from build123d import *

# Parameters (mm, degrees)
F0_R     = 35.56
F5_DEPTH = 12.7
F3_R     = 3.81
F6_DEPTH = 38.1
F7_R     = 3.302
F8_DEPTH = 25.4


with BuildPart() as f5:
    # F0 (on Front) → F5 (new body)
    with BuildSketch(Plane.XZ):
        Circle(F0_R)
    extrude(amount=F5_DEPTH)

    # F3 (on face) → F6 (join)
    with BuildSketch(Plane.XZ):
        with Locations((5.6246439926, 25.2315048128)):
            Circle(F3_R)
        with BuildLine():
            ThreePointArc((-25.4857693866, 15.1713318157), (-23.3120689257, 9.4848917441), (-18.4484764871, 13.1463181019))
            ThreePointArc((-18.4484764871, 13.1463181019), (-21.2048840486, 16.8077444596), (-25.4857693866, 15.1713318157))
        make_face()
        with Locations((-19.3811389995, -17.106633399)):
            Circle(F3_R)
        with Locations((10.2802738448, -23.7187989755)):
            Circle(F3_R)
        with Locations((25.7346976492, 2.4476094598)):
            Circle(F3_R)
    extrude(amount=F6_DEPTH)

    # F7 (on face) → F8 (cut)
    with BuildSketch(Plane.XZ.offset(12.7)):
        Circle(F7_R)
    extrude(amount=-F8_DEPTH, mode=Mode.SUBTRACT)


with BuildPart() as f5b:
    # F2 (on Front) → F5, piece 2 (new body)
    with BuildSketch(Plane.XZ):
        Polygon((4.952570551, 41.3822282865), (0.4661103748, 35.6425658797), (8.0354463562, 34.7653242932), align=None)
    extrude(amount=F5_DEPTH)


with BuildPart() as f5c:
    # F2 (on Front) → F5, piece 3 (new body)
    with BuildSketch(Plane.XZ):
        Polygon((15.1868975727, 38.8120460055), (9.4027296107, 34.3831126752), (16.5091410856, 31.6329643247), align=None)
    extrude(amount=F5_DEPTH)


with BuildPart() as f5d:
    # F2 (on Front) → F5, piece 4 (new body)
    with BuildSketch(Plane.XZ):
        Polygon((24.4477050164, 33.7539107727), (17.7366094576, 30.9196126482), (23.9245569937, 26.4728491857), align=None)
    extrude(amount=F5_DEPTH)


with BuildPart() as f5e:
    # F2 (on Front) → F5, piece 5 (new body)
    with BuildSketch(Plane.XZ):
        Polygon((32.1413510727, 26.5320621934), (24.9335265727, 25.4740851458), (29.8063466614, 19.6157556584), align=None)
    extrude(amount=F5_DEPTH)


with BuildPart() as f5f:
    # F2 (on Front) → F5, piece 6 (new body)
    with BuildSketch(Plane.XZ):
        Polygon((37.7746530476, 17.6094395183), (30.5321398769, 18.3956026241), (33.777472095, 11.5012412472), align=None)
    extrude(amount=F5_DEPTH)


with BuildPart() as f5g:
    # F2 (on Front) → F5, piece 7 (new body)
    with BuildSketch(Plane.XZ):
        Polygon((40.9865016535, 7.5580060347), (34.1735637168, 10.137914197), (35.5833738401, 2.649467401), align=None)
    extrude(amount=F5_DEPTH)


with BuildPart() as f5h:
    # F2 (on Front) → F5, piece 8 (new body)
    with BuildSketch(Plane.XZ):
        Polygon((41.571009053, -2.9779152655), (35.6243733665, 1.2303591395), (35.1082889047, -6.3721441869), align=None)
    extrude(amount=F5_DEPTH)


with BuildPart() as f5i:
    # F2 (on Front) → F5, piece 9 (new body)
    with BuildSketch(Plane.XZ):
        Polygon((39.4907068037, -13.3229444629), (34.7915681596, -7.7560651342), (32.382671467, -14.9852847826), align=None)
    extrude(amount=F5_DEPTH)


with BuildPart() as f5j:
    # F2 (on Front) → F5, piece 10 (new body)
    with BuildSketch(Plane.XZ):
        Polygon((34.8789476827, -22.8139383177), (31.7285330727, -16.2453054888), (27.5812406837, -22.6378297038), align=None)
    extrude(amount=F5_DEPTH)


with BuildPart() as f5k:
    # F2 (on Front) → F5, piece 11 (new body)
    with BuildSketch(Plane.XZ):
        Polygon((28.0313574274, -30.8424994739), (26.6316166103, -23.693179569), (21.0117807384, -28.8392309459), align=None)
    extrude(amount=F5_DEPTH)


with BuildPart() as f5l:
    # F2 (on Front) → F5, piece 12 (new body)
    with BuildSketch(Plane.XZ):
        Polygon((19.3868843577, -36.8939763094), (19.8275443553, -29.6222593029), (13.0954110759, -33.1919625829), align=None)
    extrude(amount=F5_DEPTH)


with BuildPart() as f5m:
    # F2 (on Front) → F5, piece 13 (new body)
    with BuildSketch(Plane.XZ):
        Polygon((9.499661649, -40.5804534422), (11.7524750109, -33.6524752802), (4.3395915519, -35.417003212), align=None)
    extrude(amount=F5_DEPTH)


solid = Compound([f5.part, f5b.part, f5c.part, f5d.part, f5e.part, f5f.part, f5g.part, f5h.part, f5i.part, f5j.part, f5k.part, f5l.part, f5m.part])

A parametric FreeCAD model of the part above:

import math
import FreeCAD as App
import Part
import Sketcher

V = App.Vector
Q = App.Units.Quantity

doc = App.newDocument("Part")
params = doc.addObject("Spreadsheet::Sheet", "Params")
for row, (alias, value) in enumerate([
    ("sketch1_diameter", "2.8 in"),
    ("pad1_length", "0.5 in"),
    ("sketch2_diameter", "0.3 in"),
    ("pad2_length", "1.5 in"),
    ("sketch3_diameter", "0.26 in"),
    ("pocket1_length", "1 in"),
    ("sketch4_length", "0.3 in"),
    ("pad3_length", "0.5 in"),
    ("sketch5_length", "0.3 in"),
    ("pad4_length", "0.5 in"),
    ("sketch6_length", "0.3 in"),
    ("pad5_length", "0.5 in"),
    ("sketch7_length", "0.3 in"),
    ("pad6_length", "0.5 in"),
    ("sketch8_length", "0.3 in"),
    ("pad7_length", "0.5 in"),
    ("sketch9_length", "0.3 in"),
    ("pad8_length", "0.5 in"),
    ("sketch10_length", "0.3 in"),
    ("pad9_length", "0.5 in"),
    ("sketch11_length", "0.3 in"),
    ("pad10_length", "0.5 in"),
    ("sketch12_length", "0.3 in"),
    ("pad11_length", "0.5 in"),
    ("sketch13_length", "0.3 in"),
    ("pad12_length", "0.5 in"),
    ("sketch14_length", "0.3 in"),
    ("pad13_length", "0.5 in"),
    ("sketch15_length", "0.3 in"),
    ("pad14_length", "0.5 in"),
], start=1):
    params.set(f"A{row}", alias)
    params.set(f"B{row}", "=" + value)
    params.setAlias(f"B{row}", alias)

body = doc.addObject("PartDesign::Body", "Body")

sketch1 = doc.addObject("Sketcher::SketchObject", "Sketch")
body.addObject(sketch1)
sketch1.AttachmentSupport = (doc.XZ_Plane, [""])
sketch1.MapMode = "FlatFace"
sketch1.addGeometry(Part.Circle(V(0, 0, 0), V(0, 0, 1), 36), False)
sketch1.addConstraint(Sketcher.Constraint("Coincident", 0, 3, -1, 1))
sketch1.addConstraint(Sketcher.Constraint("Diameter", 0, Q("2.8 in")))
sketch1.setExpression("Constraints[1]", "Params.sketch1_diameter")
pad1 = doc.addObject("PartDesign::Pad", "Pad")
body.addObject(pad1)
pad1.Profile = sketch1
pad1.setExpression("Length", "Params.pad1_length")

sketch2 = doc.addObject("Sketcher::SketchObject", "Sketch001")
body.addObject(sketch2)
sketch2.AttachmentSupport = (doc.XZ_Plane, [""])
sketch2.MapMode = "FlatFace"
sketch2.addGeometry(Part.Circle(V(5.6, 25.2, 0), V(0, 0, 1), 3.8), False)
sketch2.addGeometry(Part.ArcOfCircle(Part.Circle(V(-22.3, 13.1, 0), V(0, 0, 1), 3.8), math.radians(148), math.radians(360)), False)
sketch2.addGeometry(Part.ArcOfCircle(Part.Circle(V(-22.3, 13.1, 0), V(0, 0, 1), 3.8), math.radians(0), math.radians(148)), False)
sketch2.addGeometry(Part.Circle(V(-19.4, -17.1, 0), V(0, 0, 1), 3.8), False)
sketch2.addGeometry(Part.Circle(V(10.3, -23.7, 0), V(0, 0, 1), 3.8), False)
sketch2.addGeometry(Part.Circle(V(25.7, 2.4, 0), V(0, 0, 1), 3.8), False)
sketch2.addConstraint(Sketcher.Constraint("Tangent", 1, 1, 2, 2))
sketch2.addConstraint(Sketcher.Constraint("Coincident", 2, 1, 1, 2))
sketch2.addConstraint(Sketcher.Constraint("Equal", 0, 1))
sketch2.addConstraint(Sketcher.Constraint("Equal", 2, 3))
sketch2.addConstraint(Sketcher.Constraint("Equal", 3, 4))
sketch2.addConstraint(Sketcher.Constraint("Equal", 4, 5))
sketch2.addConstraint(Sketcher.Constraint("Horizontal", 1, 3, 2, 1))
sketch2.addConstraint(Sketcher.Constraint("Diameter", 0, Q("0.3 in")))
sketch2.addConstraint(Sketcher.Constraint("DistanceY", 4, 3, -1, 1, 23.718799))
sketch2.addConstraint(Sketcher.Constraint("DistanceY", -1, 1, 1, 3, 13.146318))
sketch2.addConstraint(Sketcher.Constraint("DistanceX", 3, 3, -1, 1, 19.381139))
sketch2.addConstraint(Sketcher.Constraint("DistanceY", -1, 1, 5, 3, 2.447609))
sketch2.addConstraint(Sketcher.Constraint("DistanceX", 1, 1, -1, 1, 25.485769))
sketch2.addConstraint(Sketcher.Constraint("DistanceY", -1, 1, 1, 1, 15.171332))
sketch2.addConstraint(Sketcher.Constraint("DistanceX", 1, 3, 0, 3, 27.88312))
sketch2.addConstraint(Sketcher.Constraint("DistanceY", 3, 3, 1, 3, 30.252952))
sketch2.addConstraint(Sketcher.Constraint("DistanceY", 3, 3, 0, 3, 42.338138))
sketch2.addConstraint(Sketcher.Constraint("DistanceX", 1, 3, 4, 3, 32.53875))
sketch2.addConstraint(Sketcher.Constraint("DistanceX", -1, 1, 5, 3, 25.734698))
sketch2.setExpression("Constraints[7]", "Params.sketch2_diameter")
pad2 = doc.addObject("PartDesign::Pad", "Pad001")
body.addObject(pad2)
pad2.Profile = sketch2
pad2.setExpression("Length", "Params.pad2_length")

sketch3 = doc.addObject("Sketcher::SketchObject", "Sketch002")
body.addObject(sketch3)
sketch3.AttachmentSupport = (doc.XZ_Plane, [""])
sketch3.MapMode = "FlatFace"
sketch3.AttachmentOffset = App.Placement(V(0, 0, 0.5 * 25.4), App.Rotation())
sketch3.addGeometry(Part.Circle(V(0, 0, 0), V(0, 0, 1), 3.3), False)
sketch3.addConstraint(Sketcher.Constraint("Coincident", 0, 3, -1, 1))
sketch3.addConstraint(Sketcher.Constraint("Diameter", 0, Q("0.26 in")))
sketch3.setExpression("Constraints[1]", "Params.sketch3_diameter")
pocket1 = doc.addObject("PartDesign::Pocket", "Pocket")
body.addObject(pocket1)
pocket1.Profile = sketch3
pocket1.setExpression("Length", "Params.pocket1_length")
body2 = doc.addObject("PartDesign::Body", "Body001")

sketch4 = doc.addObject("Sketcher::SketchObject", "Sketch003")
body2.addObject(sketch4)
sketch4.AttachmentSupport = (doc.getObject("XZ_Plane001"), [""])
sketch4.MapMode = "FlatFace"
sketch4.addGeometry(Part.LineSegment(V(5, 41, 0), V(0, 36, 0)), False)
sketch4.addGeometry(Part.LineSegment(V(0, 36, 0), V(8, 35, 0)), False)
sketch4.addGeometry(Part.LineSegment(V(8, 35, 0), V(5, 41, 0)), False)
sketch4.addConstraint(Sketcher.Constraint("Coincident", 0, 2, 1, 1))
sketch4.addConstraint(Sketcher.Constraint("Coincident", 1, 2, 2, 1))
sketch4.addConstraint(Sketcher.Constraint("Coincident", 2, 2, 0, 1))
sketch4.addConstraint(Sketcher.Constraint("Distance", 1, Q("0.3 in")))
sketch4.addConstraint(Sketcher.Constraint("Distance", 2, 7.299832))
sketch4.addConstraint(Sketcher.Constraint("DistanceX", -1, 1, 0, 2, 0.46611))
sketch4.addConstraint(Sketcher.Constraint("DistanceX", -1, 1, 2, 2, 4.952571))
sketch4.addConstraint(Sketcher.Constraint("DistanceY", -1, 1, 2, 2, 41.382228))
sketch4.addConstraint(Sketcher.Constraint("DistanceY", 1, 2, 0, 2, 0.877242))
sketch4.setExpression("Constraints[3]", "Params.sketch4_length")
pad3 = doc.addObject("PartDesign::Pad", "Pad002")
body2.addObject(pad3)
pad3.Profile = sketch4
pad3.setExpression("Length", "Params.pad3_length")
body3 = doc.addObject("PartDesign::Body", "Body002")

sketch5 = doc.addObject("Sketcher::SketchObject", "Sketch004")
body3.addObject(sketch5)
sketch5.AttachmentSupport = (doc.getObject("XZ_Plane002"), [""])
sketch5.MapMode = "FlatFace"
sketch5.addGeometry(Part.LineSegment(V(15, 39, 0), V(9, 34, 0)), False)
sketch5.addGeometry(Part.LineSegment(V(9, 34, 0), V(17, 32, 0)), False)
sketch5.addGeometry(Part.LineSegment(V(17, 32, 0), V(15, 39, 0)), False)
sketch5.addConstraint(Sketcher.Constraint("Coincident", 0, 2, 1, 1))
sketch5.addConstraint(Sketcher.Constraint("Coincident", 1, 2, 2, 1))
sketch5.addConstraint(Sketcher.Constraint("Coincident", 2, 2, 0, 1))
sketch5.addConstraint(Sketcher.Constraint("Distance", 1, Q("0.3 in")))
sketch5.addConstraint(Sketcher.Constraint("Distance", 2, 7.299832))
sketch5.addConstraint(Sketcher.Constraint("DistanceX", -1, 1, 0, 2, 9.40273))
sketch5.addConstraint(Sketcher.Constraint("DistanceX", -1, 1, 1, 2, 16.509141))
sketch5.addConstraint(Sketcher.Constraint("DistanceY", 1, 2, 2, 2, 7.179082))
sketch5.addConstraint(Sketcher.Constraint("DistanceY", -1, 1, 0, 2, 34.383113))
sketch5.setExpression("Constraints[3]", "Params.sketch5_length")
pad4 = doc.addObject("PartDesign::Pad", "Pad003")
body3.addObject(pad4)
pad4.Profile = sketch5
pad4.setExpression("Length", "Params.pad4_length")
body4 = doc.addObject("PartDesign::Body", "Body003")

sketch6 = doc.addObject("Sketcher::SketchObject", "Sketch005")
body4.addObject(sketch6)
sketch6.AttachmentSupport = (doc.getObject("XZ_Plane003"), [""])
sketch6.MapMode = "FlatFace"
sketch6.addGeometry(Part.LineSegment(V(24, 34, 0), V(18, 31, 0)), False)
sketch6.addGeometry(Part.LineSegment(V(18, 31, 0), V(24, 26, 0)), False)
sketch6.addGeometry(Part.LineSegment(V(24, 26, 0), V(24, 34, 0)), False)
sketch6.addConstraint(Sketcher.Constraint("Coincident", 0, 2, 1, 1))
sketch6.addConstraint(Sketcher.Constraint("Coincident", 1, 2, 2, 1))
sketch6.addConstraint(Sketcher.Constraint("Coincident", 2, 2, 0, 1))
sketch6.addConstraint(Sketcher.Constraint("Distance", 1, Q("0.3 in")))
sketch6.addConstraint(Sketcher.Constraint("DistanceY", 0, 2, 2, 2, 2.834298))
sketch6.addConstraint(Sketcher.Constraint("Distance", 2, 7.299832))
sketch6.addConstraint(Sketcher.Constraint("DistanceX", -1, 1, 0, 2, 17.736609))
sketch6.addConstraint(Sketcher.Constraint("DistanceY", -1, 1, 1, 2, 26.472849))
sketch6.addConstraint(Sketcher.Constraint("DistanceY", -1, 1, 2, 2, 33.753911))
sketch6.setExpression("Constraints[3]", "Params.sketch6_length")
pad5 = doc.addObject("PartDesign::Pad", "Pad004")
body4.addObject(pad5)
pad5.Profile = sketch6
pad5.setExpression("Length", "Params.pad5_length")
body5 = doc.addObject("PartDesign::Body", "Body004")

sketch7 = doc.addObject("Sketcher::SketchObject", "Sketch006")
body5.addObject(sketch7)
sketch7.AttachmentSupport = (doc.getObject("XZ_Plane004"), [""])
sketch7.MapMode = "FlatFace"
sketch7.addGeometry(Part.LineSegment(V(32, 27, 0), V(25, 25, 0)), False)
sketch7.addGeometry(Part.LineSegment(V(25, 25, 0), V(30, 20, 0)), False)
sketch7.addGeometry(Part.LineSegment(V(30, 20, 0), V(32, 27, 0)), False)
sketch7.addConstraint(Sketcher.Constraint("Coincident", 0, 2, 1, 1))
sketch7.addConstraint(Sketcher.Constraint("Coincident", 1, 2, 2, 1))
sketch7.addConstraint(Sketcher.Constraint("Coincident", 2, 2, 0, 1))
sketch7.addConstraint(Sketcher.Constraint("Distance", 1, Q("0.3 in")))
sketch7.addConstraint(Sketcher.Constraint("Distance", 2, 7.299832))
sketch7.addConstraint(Sketcher.Constraint("DistanceX", -1, 1, 2, 2, 32.141351))
sketch7.addConstraint(Sketcher.Constraint("DistanceX", 0, 2, 1, 2, 4.87282))
sketch7.addConstraint(Sketcher.Constraint("Distance", 0, 7.285057))
sketch7.addConstraint(Sketcher.Constraint("DistanceY", -1, 1, 0, 2, 25.474085))
sketch7.setExpression("Constraints[3]", "Params.sketch7_length")
pad6 = doc.addObject("PartDesign::Pad", "Pad005")
body5.addObject(pad6)
pad6.Profile = sketch7
pad6.setExpression("Length", "Params.pad6_length")
body6 = doc.addObject("PartDesign::Body", "Body005")

sketch8 = doc.addObject("Sketcher::SketchObject", "Sketch007")
body6.addObject(sketch8)
sketch8.AttachmentSupport = (doc.getObject("XZ_Plane005"), [""])
sketch8.MapMode = "FlatFace"
sketch8.addGeometry(Part.LineSegment(V(38, 18, 0), V(31, 18, 0)), False)
sketch8.addGeometry(Part.LineSegment(V(31, 18, 0), V(34, 12, 0)), False)
sketch8.addGeometry(Part.LineSegment(V(34, 12, 0), V(38, 18, 0)), False)
sketch8.addConstraint(Sketcher.Constraint("Coincident", 0, 2, 1, 1))
sketch8.addConstraint(Sketcher.Constraint("Coincident", 1, 2, 2, 1))
sketch8.addConstraint(Sketcher.Constraint("Coincident", 2, 2, 0, 1))
sketch8.addConstraint(Sketcher.Constraint("Distance", 1, Q("0.3 in")))
sketch8.addConstraint(Sketcher.Constraint("DistanceY", 1, 2, 2, 2, 6.108198))
sketch8.addConstraint(Sketcher.Constraint("Distance", 2, 7.299832))
sketch8.addConstraint(Sketcher.Constraint("DistanceX", -1, 1, 0, 2, 30.53214))
sketch8.addConstraint(Sketcher.Constraint("DistanceY", -1, 1, 1, 2, 11.501241))
sketch8.addConstraint(Sketcher.Constraint("DistanceY", 1, 2, 0, 2, 6.894361))
sketch8.setExpression("Constraints[3]", "Params.sketch8_length")
pad7 = doc.addObject("PartDesign::Pad", "Pad006")
body6.addObject(pad7)
pad7.Profile = sketch8
pad7.setExpression("Length", "Params.pad7_length")
body7 = doc.addObject("PartDesign::Body", "Body006")

sketch9 = doc.addObject("Sketcher::SketchObject", "Sketch008")
body7.addObject(sketch9)
sketch9.AttachmentSupport = (doc.getObject("XZ_Plane006"), [""])
sketch9.MapMode = "FlatFace"
sketch9.addGeometry(Part.LineSegment(V(41, 8, 0), V(34, 10, 0)), False)
sketch9.addGeometry(Part.LineSegment(V(34, 10, 0), V(36, 3, 0)), False)
sketch9.addGeometry(Part.LineSegment(V(36, 3, 0), V(41, 8, 0)), False)
sketch9.addConstraint(Sketcher.Constraint("Coincident", 0, 2, 1, 1))
sketch9.addConstraint(Sketcher.Constraint("Coincident", 1, 2, 2, 1))
sketch9.addConstraint(Sketcher.Constraint("Coincident", 2, 2, 0, 1))
sketch9.addConstraint(Sketcher.Constraint("Distance", 1, Q("0.3 in")))
sketch9.addConstraint(Sketcher.Constraint("DistanceX", -1, 1, 2, 2, 40.986502))
sketch9.addConstraint(Sketcher.Constraint("Distance", 2, 7.299832))
sketch9.addConstraint(Sketcher.Constraint("DistanceX", 0, 2, 1, 2, 1.40981))
sketch9.addConstraint(Sketcher.Constraint("DistanceY", 2, 2, 0, 2, 2.579908))
sketch9.addConstraint(Sketcher.Constraint("DistanceY", -1, 1, 0, 2, 10.137914))
sketch9.setExpression("Constraints[3]", "Params.sketch9_length")
pad8 = doc.addObject("PartDesign::Pad", "Pad007")
body7.addObject(pad8)
pad8.Profile = sketch9
pad8.setExpression("Length", "Params.pad8_length")
body8 = doc.addObject("PartDesign::Body", "Body007")

sketch10 = doc.addObject("Sketcher::SketchObject", "Sketch009")
body8.addObject(sketch10)
sketch10.AttachmentSupport = (doc.getObject("XZ_Plane007"), [""])
sketch10.MapMode = "FlatFace"
sketch10.addGeometry(Part.LineSegment(V(42, -3, 0), V(36, 1, 0)), False)
sketch10.addGeometry(Part.LineSegment(V(36, 1, 0), V(35, -6, 0)), False)
sketch10.addGeometry(Part.LineSegment(V(35, -6, 0), V(42, -3, 0)), False)
sketch10.addConstraint(Sketcher.Constraint("Coincident", 0, 2, 1, 1))
sketch10.addConstraint(Sketcher.Constraint("Coincident", 1, 2, 2, 1))
sketch10.addConstraint(Sketcher.Constraint("Coincident", 2, 2, 0, 1))
sketch10.addConstraint(Sketcher.Constraint("Distance", 1, Q("0.3 in")))
sketch10.addConstraint(Sketcher.Constraint("Distance", 2, 7.299832))
sketch10.addConstraint(Sketcher.Constraint("DistanceY", -1, 1, 0, 2, 1.230359))
sketch10.addConstraint(Sketcher.Constraint("DistanceX", -1, 1, 1, 2, 35.108289))
sketch10.addConstraint(Sketcher.Constraint("DistanceX", -1, 1, 2, 2, 41.571009))
sketch10.addConstraint(Sketcher.Constraint("Distance", 0, 7.285057))
sketch10.setExpression("Constraints[3]", "Params.sketch10_length")
pad9 = doc.addObject("PartDesign::Pad", "Pad008")
body8.addObject(pad9)
pad9.Profile = sketch10
pad9.setExpression("Length", "Params.pad9_length")
body9 = doc.addObject("PartDesign::Body", "Body008")

sketch11 = doc.addObject("Sketcher::SketchObject", "Sketch010")
body9.addObject(sketch11)
sketch11.AttachmentSupport = (doc.getObject("XZ_Plane008"), [""])
sketch11.MapMode = "FlatFace"
sketch11.addGeometry(Part.LineSegment(V(39, -13, 0), V(35, -8, 0)), False)
sketch11.addGeometry(Part.LineSegment(V(35, -8, 0), V(32, -15, 0)), False)
sketch11.addGeometry(Part.LineSegment(V(32, -15, 0), V(39, -13, 0)), False)
sketch11.addConstraint(Sketcher.Constraint("Coincident", 0, 2, 1, 1))
sketch11.addConstraint(Sketcher.Constraint("Coincident", 1, 2, 2, 1))
sketch11.addConstraint(Sketcher.Constraint("Coincident", 2, 2, 0, 1))
sketch11.addConstraint(Sketcher.Constraint("Distance", 1, Q("0.3 in")))
sketch11.addConstraint(Sketcher.Constraint("Distance", 2, 7.299832))
sketch11.addConstraint(Sketcher.Constraint("DistanceX", -1, 1, 0, 2, 34.791568))
sketch11.addConstraint(Sketcher.Constraint("DistanceX", -1, 1, 1, 2, 32.382671))
sketch11.addConstraint(Sketcher.Constraint("DistanceX", 0, 2, 2, 2, 4.699139))
sketch11.addConstraint(Sketcher.Constraint("DistanceY", 0, 2, -1, 1, 7.756065))
sketch11.setExpression("Constraints[3]", "Params.sketch11_length")
pad10 = doc.addObject("PartDesign::Pad", "Pad009")
body9.addObject(pad10)
pad10.Profile = sketch11
pad10.setExpression("Length", "Params.pad10_length")
body10 = doc.addObject("PartDesign::Body", "Body009")

sketch12 = doc.addObject("Sketcher::SketchObject", "Sketch011")
body10.addObject(sketch12)
sketch12.AttachmentSupport = (doc.getObject("XZ_Plane009"), [""])
sketch12.MapMode = "FlatFace"
sketch12.addGeometry(Part.LineSegment(V(35, -23, 0), V(32, -16, 0)), False)
sketch12.addGeometry(Part.LineSegment(V(32, -16, 0), V(28, -23, 0)), False)
sketch12.addGeometry(Part.LineSegment(V(28, -23, 0), V(35, -23, 0)), False)
sketch12.addConstraint(Sketcher.Constraint("Coincident", 0, 2, 1, 1))
sketch12.addConstraint(Sketcher.Constraint("Coincident", 1, 2, 2, 1))
sketch12.addConstraint(Sketcher.Constraint("Coincident", 2, 2, 0, 1))
sketch12.addConstraint(Sketcher.Constraint("Distance", 1, Q("0.3 in")))
sketch12.addConstraint(Sketcher.Constraint("Distance", 2, 7.299832))
sketch12.addConstraint(Sketcher.Constraint("DistanceX", -1, 1, 1, 2, 27.581241))
sketch12.addConstraint(Sketcher.Constraint("DistanceY", 1, 2, -1, 1, 22.63783))
sketch12.addConstraint(Sketcher.Constraint("DistanceY", 2, 2, -1, 1, 22.813938))
sketch12.addConstraint(Sketcher.Constraint("Distance", 0, 7.285057))
sketch12.setExpression("Constraints[3]", "Params.sketch12_length")
pad11 = doc.addObject("PartDesign::Pad", "Pad010")
body10.addObject(pad11)
pad11.Profile = sketch12
pad11.setExpression("Length", "Params.pad11_length")
body11 = doc.addObject("PartDesign::Body", "Body010")

sketch13 = doc.addObject("Sketcher::SketchObject", "Sketch012")
body11.addObject(sketch13)
sketch13.AttachmentSupport = (doc.getObject("XZ_Plane010"), [""])
sketch13.MapMode = "FlatFace"
sketch13.addGeometry(Part.LineSegment(V(28, -31, 0), V(27, -24, 0)), False)
sketch13.addGeometry(Part.LineSegment(V(27, -24, 0), V(21, -29, 0)), False)
sketch13.addGeometry(Part.LineSegment(V(21, -29, 0), V(28, -31, 0)), False)
sketch13.addConstraint(Sketcher.Constraint("Coincident", 0, 2, 1, 1))
sketch13.addConstraint(Sketcher.Constraint("Coincident", 1, 2, 2, 1))
sketch13.addConstraint(Sketcher.Constraint("Coincident", 2, 2, 0, 1))
sketch13.addConstraint(Sketcher.Constraint("Distance", 1, Q("0.3 in")))
sketch13.addConstraint(Sketcher.Constraint("DistanceY", 2, 2, -1, 1, 30.842499))
sketch13.addConstraint(Sketcher.Constraint("Distance", 2, 7.299832))
sketch13.addConstraint(Sketcher.Constraint("DistanceY", 0, 2, -1, 1, 23.69318))
sketch13.addConstraint(Sketcher.Constraint("DistanceX", -1, 1, 1, 2, 21.011781))
sketch13.addConstraint(Sketcher.Constraint("DistanceY", 1, 2, -1, 1, 28.839231))
sketch13.setExpression("Constraints[3]", "Params.sketch13_length")
pad12 = doc.addObject("PartDesign::Pad", "Pad011")
body11.addObject(pad12)
pad12.Profile = sketch13
pad12.setExpression("Length", "Params.pad12_length")
body12 = doc.addObject("PartDesign::Body", "Body011")

sketch14 = doc.addObject("Sketcher::SketchObject", "Sketch013")
body12.addObject(sketch14)
sketch14.AttachmentSupport = (doc.getObject("XZ_Plane011"), [""])
sketch14.MapMode = "FlatFace"
sketch14.addGeometry(Part.LineSegment(V(19, -37, 0), V(20, -30, 0)), False)
sketch14.addGeometry(Part.LineSegment(V(20, -30, 0), V(13, -33, 0)), False)
sketch14.addGeometry(Part.LineSegment(V(13, -33, 0), V(19, -37, 0)), False)
sketch14.addConstraint(Sketcher.Constraint("Coincident", 0, 2, 1, 1))
sketch14.addConstraint(Sketcher.Constraint("Coincident", 1, 2, 2, 1))
sketch14.addConstraint(Sketcher.Constraint("Coincident", 2, 2, 0, 1))
sketch14.addConstraint(Sketcher.Constraint("Distance", 1, Q("0.3 in")))
sketch14.addConstraint(Sketcher.Constraint("Distance", 2, 7.299832))
sketch14.addConstraint(Sketcher.Constraint("DistanceY", 0, 2, -1, 1, 29.622259))
sketch14.addConstraint(Sketcher.Constraint("DistanceX", -1, 1, 1, 2, 13.095411))
sketch14.addConstraint(Sketcher.Constraint("DistanceX", 2, 2, 0, 2, 0.44066))
sketch14.addConstraint(Sketcher.Constraint("Distance", 0, 7.285057))
sketch14.setExpression("Constraints[3]", "Params.sketch14_length")
pad13 = doc.addObject("PartDesign::Pad", "Pad012")
body12.addObject(pad13)
pad13.Profile = sketch14
pad13.setExpression("Length", "Params.pad13_length")
body13 = doc.addObject("PartDesign::Body", "Body012")

sketch15 = doc.addObject("Sketcher::SketchObject", "Sketch014")
body13.addObject(sketch15)
sketch15.AttachmentSupport = (doc.getObject("XZ_Plane012"), [""])
sketch15.MapMode = "FlatFace"
sketch15.addGeometry(Part.LineSegment(V(9, -41, 0), V(12, -34, 0)), False)
sketch15.addGeometry(Part.LineSegment(V(12, -34, 0), V(4, -35, 0)), False)
sketch15.addGeometry(Part.LineSegment(V(4, -35, 0), V(9, -41, 0)), False)
sketch15.addConstraint(Sketcher.Constraint("Coincident", 0, 2, 1, 1))
sketch15.addConstraint(Sketcher.Constraint("Coincident", 1, 2, 2, 1))
sketch15.addConstraint(Sketcher.Constraint("Coincident", 2, 2, 0, 1))
sketch15.addConstraint(Sketcher.Constraint("Distance", 1, Q("0.3 in")))
sketch15.addConstraint(Sketcher.Constraint("Distance", 2, 7.299832))
sketch15.addConstraint(Sketcher.Constraint("DistanceX", -1, 1, 1, 2, 4.339592))
sketch15.addConstraint(Sketcher.Constraint("DistanceX", -1, 1, 2, 2, 9.499662))
sketch15.addConstraint(Sketcher.Constraint("DistanceY", 2, 2, 0, 2, 6.927978))
sketch15.addConstraint(Sketcher.Constraint("DistanceY", 0, 2, -1, 1, 33.652475))
sketch15.setExpression("Constraints[3]", "Params.sketch15_length")
pad14 = doc.addObject("PartDesign::Pad", "Pad013")
body13.addObject(pad14)
pad14.Profile = sketch15
pad14.setExpression("Length", "Params.pad14_length")

doc.recompute()
